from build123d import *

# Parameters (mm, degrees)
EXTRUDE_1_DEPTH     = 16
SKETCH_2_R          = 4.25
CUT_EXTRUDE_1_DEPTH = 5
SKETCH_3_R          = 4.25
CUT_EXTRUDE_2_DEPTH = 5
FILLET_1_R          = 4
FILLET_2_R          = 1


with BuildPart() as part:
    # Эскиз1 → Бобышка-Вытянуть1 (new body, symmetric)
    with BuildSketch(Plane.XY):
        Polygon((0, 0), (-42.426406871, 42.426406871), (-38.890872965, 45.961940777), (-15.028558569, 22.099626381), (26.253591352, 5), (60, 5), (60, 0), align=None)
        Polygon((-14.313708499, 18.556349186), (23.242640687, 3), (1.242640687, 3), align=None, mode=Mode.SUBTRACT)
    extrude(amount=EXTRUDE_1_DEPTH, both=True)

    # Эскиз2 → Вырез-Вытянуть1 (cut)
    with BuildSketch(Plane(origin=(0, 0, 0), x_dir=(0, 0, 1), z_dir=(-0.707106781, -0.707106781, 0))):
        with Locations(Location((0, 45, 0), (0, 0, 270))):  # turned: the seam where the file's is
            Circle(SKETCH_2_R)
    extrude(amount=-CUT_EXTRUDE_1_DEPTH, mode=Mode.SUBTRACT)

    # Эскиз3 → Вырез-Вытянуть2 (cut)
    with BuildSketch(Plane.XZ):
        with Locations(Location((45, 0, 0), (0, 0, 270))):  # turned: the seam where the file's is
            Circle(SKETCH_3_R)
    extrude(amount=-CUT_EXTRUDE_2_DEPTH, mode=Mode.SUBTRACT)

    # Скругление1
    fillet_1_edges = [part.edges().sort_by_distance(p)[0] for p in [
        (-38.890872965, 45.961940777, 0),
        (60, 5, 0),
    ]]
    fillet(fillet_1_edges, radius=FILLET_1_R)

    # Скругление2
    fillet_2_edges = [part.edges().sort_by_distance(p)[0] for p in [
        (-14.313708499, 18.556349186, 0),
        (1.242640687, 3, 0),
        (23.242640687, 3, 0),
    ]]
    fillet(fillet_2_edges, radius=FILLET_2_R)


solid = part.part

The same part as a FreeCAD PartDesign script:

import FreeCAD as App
import Part
import Sketcher
from FreeCAD import Vector
Q = App.Units.Quantity


def edges_at(feature, points):
    """Names of the edges that pass closest to the given points."""
    edges = feature.Shape.Edges
    near = lambda p: min(range(len(edges)), key=lambda i: edges[i].distToShape(Part.Vertex(*p))[0])
    return sorted({f"Edge{near(p) + 1}" for p in points})


def add_polygon(sketch, points):
    """Adds a closed chain of lines whose ends are joined by coincident constraints."""
    first, n = sketch.GeometryCount, len(points)
    for a, b in zip(points, points[1:] + points[:1]):
        sketch.addGeometry(Part.LineSegment(App.Vector(*a, 0), App.Vector(*b, 0)), False)
    for i in range(n):
        sketch.addConstraint(Sketcher.Constraint("Coincident", first + i, 2, first + (i + 1) % n, 1))

doc = App.newDocument("Part")
params = doc.addObject("Spreadsheet::Sheet", "Params")
for row, (alias, value) in enumerate([
    ("sketch1_width", "60 mm"),
    ("sketch1_width2", "22 mm"),
    ("sketch1_height", "5 mm"),
    ("sketch1_length", "60 mm"),
    ("sketch1_length2", "5 mm"),
    ("pad1_length", "32 mm"),
    ("sketch2_diameter", "8.5 mm"),
    ("pocket1_length", "5 mm"),
    ("sketch3_diameter", "8.5 mm"),
    ("pocket2_length", "5 mm"),
    ("fillet_radius", "4 mm"),
    ("fillet2_radius", "1 mm"),
], start=1):
    params.set(f"A{row}", alias)
    params.set(f"B{row}", "=" + value)
    params.setAlias(f"B{row}", alias)

body = doc.addObject("PartDesign::Body", "Body")

# Sketch on XY plane
sketch1 = doc.addObject("Sketcher::SketchObject", "Sketch")
body.addObject(sketch1)
sketch1.AttachmentSupport = (doc.XY_Plane, [""])
sketch1.MapMode = "FlatFace"
add_polygon(sketch1, [(-42, 42), (0, 0), (60, 0), (60, 5), (26, 5), (-15, 22), (-39, 46)])  # lines 0-6
add_polygon(sketch1, [(-14, 19), (23, 3), (1, 3)])  # lines 7-9
sketch1.addConstraint([
    Sketcher.Constraint("Horizontal", 1),
    Sketcher.Constraint("Vertical", 2),
    Sketcher.Constraint("Horizontal", 3),
    Sketcher.Constraint("Horizontal", 8),
    Sketcher.Constraint("Coincident", 0, 2, -1, 1),
    Sketcher.Constraint("Parallel", 0, 5),
    Sketcher.Constraint("Perpendicular", 5, 6),
    Sketcher.Constraint("Parallel", 4, 7),
    Sketcher.Constraint("Perpendicular", 6, 9),
    Sketcher.Constraint("DistanceX", 1, 1, 1, 2, 60.0),
    Sketcher.Constraint("DistanceX", 8, 2, 8, 1, 22.0),
    Sketcher.Constraint("DistanceY", 2, 1, 2, 2, 5.0),
    Sketcher.Constraint("Angle", 0, Q("-45 deg")),
    Sketcher.Constraint("Distance", 0, 60.0),
    Sketcher.Constraint("Distance", 6, 5.0),
    Sketcher.Constraint("Distance", 9, 22.0),
    Sketcher.Constraint("DistanceY", -1, 1, 7, 2, 3.0),
    Sketcher.Constraint("DistanceX", 6, 2, 3, 2, 68.679998),
    Sketcher.Constraint("DistanceX", 4, 2, 7, 2, 38.271199),
])
sketch1.setExpression("Constraints[19]", "Params.sketch1_width")
sketch1.setExpression("Constraints[20]", "Params.sketch1_width2")
sketch1.setExpression("Constraints[21]", "Params.sketch1_height")
sketch1.setExpression("Constraints[23]", "Params.sketch1_length")
sketch1.setExpression("Constraints[24]", "Params.sketch1_length2")
pad1 = doc.addObject("PartDesign::Pad", "Pad")
body.addObject(pad1)
pad1.Profile = sketch1
pad1.setExpression("Length", "Params.pad1_length")
pad1.Midplane = True

# Sketch on an angled plane
sketch2 = doc.addObject("Sketcher::SketchObject", "Sketch001")
body.addObject(sketch2)
sketch2.Placement = App.Placement(Vector(0, 0, 0), App.Rotation(Vector(0, 0, 1), Vector(-0.707106781, 0.707106781, 0), Vector(-0.707106781, -0.707106781, 0), "ZXY"))
sketch2.addGeometry(Part.Circle(Vector(0, 45, 0), Vector(0, 0, 1), 4.2), False)
sketch2.addConstraint([
    Sketcher.Constraint("PointOnObject", 0, 3, -2),
    Sketcher.Constraint("Diameter", 0, 8.5),
    Sketcher.Constraint("DistanceY", -1, 1, 0, 3, 45.0),
])
sketch2.setExpression("Constraints[1]", "Params.sketch2_diameter")
pocket1 = doc.addObject("PartDesign::Pocket", "Pocket")
body.addObject(pocket1)
pocket1.Profile = sketch2
pocket1.setExpression("Length", "Params.pocket1_length")

# Sketch on XZ plane
sketch3 = doc.addObject("Sketcher::SketchObject", "Sketch002")
body.addObject(sketch3)
sketch3.AttachmentSupport = (doc.XZ_Plane, [""])
sketch3.MapMode = "FlatFace"
sketch3.addGeometry(Part.Circle(Vector(45, 0, 0), Vector(0, 0, 1), 4.2), False)
sketch3.addConstraint([
    Sketcher.Constraint("PointOnObject", 0, 3, -1),
    Sketcher.Constraint("Diameter", 0, 8.5),
    Sketcher.Constraint("DistanceX", -1, 1, 0, 3, 45.0),
])
sketch3.setExpression("Constraints[1]", "Params.sketch3_diameter")
pocket2 = doc.addObject("PartDesign::Pocket", "Pocket001")
body.addObject(pocket2)
pocket2.Profile = sketch3
pocket2.setExpression("Length", "Params.pocket2_length")
doc.recompute()

fillet = doc.addObject("PartDesign::Fillet", "Fillet")
body.addObject(fillet)
fillet.Base = (pocket2, edges_at(pocket2, [(-38.891, 45.962, 0), (60, 5, 0)]))
fillet.setExpression("Radius", "Params.fillet_radius")
doc.recompute()

fillet2 = doc.addObject("PartDesign::Fillet", "Fillet001")
body.addObject(fillet2)
fillet2.Base = (fillet, edges_at(fillet, [(-14.314, 18.556, 0), (1.243, 3, 0), (23.243, 3, 0)]))
fillet2.setExpression("Radius", "Params.fillet2_radius")

doc.recompute()
